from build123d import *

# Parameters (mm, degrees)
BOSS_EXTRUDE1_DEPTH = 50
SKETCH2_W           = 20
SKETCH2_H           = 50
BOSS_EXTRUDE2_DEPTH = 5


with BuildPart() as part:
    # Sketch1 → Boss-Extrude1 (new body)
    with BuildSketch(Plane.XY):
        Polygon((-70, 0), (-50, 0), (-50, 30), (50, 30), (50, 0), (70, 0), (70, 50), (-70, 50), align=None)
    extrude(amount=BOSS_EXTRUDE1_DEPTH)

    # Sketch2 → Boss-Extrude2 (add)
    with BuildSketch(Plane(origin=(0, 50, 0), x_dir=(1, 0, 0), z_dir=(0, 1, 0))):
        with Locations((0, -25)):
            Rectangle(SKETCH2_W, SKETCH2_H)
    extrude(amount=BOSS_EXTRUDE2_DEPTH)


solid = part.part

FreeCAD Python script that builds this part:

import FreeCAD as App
import Part
import Sketcher

V = App.Vector
Q = App.Units.Quantity


def add_polygon(sketch, points):
    """Adds a closed chain of lines whose ends are joined by coincident constraints."""
    first, n = sketch.GeometryCount, len(points)
    for a, b in zip(points, points[1:] + points[:1]):
        sketch.addGeometry(Part.LineSegment(App.Vector(*a, 0), App.Vector(*b, 0)), False)
    for i in range(n):
        sketch.addConstraint(Sketcher.Constraint("Coincident", first + i, 2, first + (i + 1) % n, 1))

doc = App.newDocument("Part")
body = doc.addObject("PartDesign::Body", "Body")

sketch1 = doc.addObject("Sketcher::SketchObject", "Sketch")
body.addObject(sketch1)
sketch1.AttachmentSupport = (doc.XY_Plane, [""])
sketch1.MapMode = "FlatFace"
add_polygon(sketch1, [(-70, 0), (-50, 0), (-50, 30), (50, 30), (50, 0), (70, 0), (70, 50), (-70, 50)])
sketch1.addConstraint([
    Sketcher.Constraint("Horizontal", 0),
    Sketcher.Constraint("Vertical", 1),
    Sketcher.Constraint("Horizontal", 2),
    Sketcher.Constraint("Vertical", 3),
    Sketcher.Constraint("Horizontal", 4),
    Sketcher.Constraint("Vertical", 5),
    Sketcher.Constraint("Horizontal", 6),
    Sketcher.Constraint("Vertical", 7),
    Sketcher.Constraint("Symmetric", 0, 2, 3, 2, -1, 1),
    Sketcher.Constraint("Symmetric", 4, 2, 7, 2, -2),
    Sketcher.Constraint("DistanceX", 0, 1, 0, 2, Q("20 mm")),
    Sketcher.Constraint("DistanceX", 2, 1, 2, 2, Q("100 mm")),
    Sketcher.Constraint("DistanceY", 1, 1, 1, 2, Q("30 mm")),
    Sketcher.Constraint("DistanceY", 5, 1, 5, 2, Q("50 mm")),
])
pad1 = doc.addObject("PartDesign::Pad", "Pad")
body.addObject(pad1)
pad1.Profile = sketch1
pad1.Length = 50

sketch2 = doc.addObject("Sketcher::SketchObject", "Sketch001")
body.addObject(sketch2)
sketch2.AttachmentSupport = (doc.XZ_Plane, [""])
sketch2.MapMode = "FlatFace"
sketch2.AttachmentOffset = App.Placement(V(0, 0, -50), App.Rotation())
add_polygon(sketch2, [(-10, 0), (-10, 50), (10, 50), (10, 0)])
sketch2.addConstraint([
    Sketcher.Constraint("Vertical", 0),
    Sketcher.Constraint("Horizontal", 1),
    Sketcher.Constraint("Vertical", 2),
    Sketcher.Constraint("Horizontal", 3),
    Sketcher.Constraint("Symmetric", 2, 2, 3, 2, -1, 1),
    Sketcher.Constraint("DistanceX", 1, 1, 1, 2, Q("20 mm")),
    Sketcher.Constraint("DistanceY", 0, 1, 0, 2, Q("50 mm")),
])
pad2 = doc.addObject("PartDesign::Pad", "Pad001")
body.addObject(pad2)
pad2.Profile = sketch2
pad2.Length = 5
pad2.Reversed = True

doc.recompute()
